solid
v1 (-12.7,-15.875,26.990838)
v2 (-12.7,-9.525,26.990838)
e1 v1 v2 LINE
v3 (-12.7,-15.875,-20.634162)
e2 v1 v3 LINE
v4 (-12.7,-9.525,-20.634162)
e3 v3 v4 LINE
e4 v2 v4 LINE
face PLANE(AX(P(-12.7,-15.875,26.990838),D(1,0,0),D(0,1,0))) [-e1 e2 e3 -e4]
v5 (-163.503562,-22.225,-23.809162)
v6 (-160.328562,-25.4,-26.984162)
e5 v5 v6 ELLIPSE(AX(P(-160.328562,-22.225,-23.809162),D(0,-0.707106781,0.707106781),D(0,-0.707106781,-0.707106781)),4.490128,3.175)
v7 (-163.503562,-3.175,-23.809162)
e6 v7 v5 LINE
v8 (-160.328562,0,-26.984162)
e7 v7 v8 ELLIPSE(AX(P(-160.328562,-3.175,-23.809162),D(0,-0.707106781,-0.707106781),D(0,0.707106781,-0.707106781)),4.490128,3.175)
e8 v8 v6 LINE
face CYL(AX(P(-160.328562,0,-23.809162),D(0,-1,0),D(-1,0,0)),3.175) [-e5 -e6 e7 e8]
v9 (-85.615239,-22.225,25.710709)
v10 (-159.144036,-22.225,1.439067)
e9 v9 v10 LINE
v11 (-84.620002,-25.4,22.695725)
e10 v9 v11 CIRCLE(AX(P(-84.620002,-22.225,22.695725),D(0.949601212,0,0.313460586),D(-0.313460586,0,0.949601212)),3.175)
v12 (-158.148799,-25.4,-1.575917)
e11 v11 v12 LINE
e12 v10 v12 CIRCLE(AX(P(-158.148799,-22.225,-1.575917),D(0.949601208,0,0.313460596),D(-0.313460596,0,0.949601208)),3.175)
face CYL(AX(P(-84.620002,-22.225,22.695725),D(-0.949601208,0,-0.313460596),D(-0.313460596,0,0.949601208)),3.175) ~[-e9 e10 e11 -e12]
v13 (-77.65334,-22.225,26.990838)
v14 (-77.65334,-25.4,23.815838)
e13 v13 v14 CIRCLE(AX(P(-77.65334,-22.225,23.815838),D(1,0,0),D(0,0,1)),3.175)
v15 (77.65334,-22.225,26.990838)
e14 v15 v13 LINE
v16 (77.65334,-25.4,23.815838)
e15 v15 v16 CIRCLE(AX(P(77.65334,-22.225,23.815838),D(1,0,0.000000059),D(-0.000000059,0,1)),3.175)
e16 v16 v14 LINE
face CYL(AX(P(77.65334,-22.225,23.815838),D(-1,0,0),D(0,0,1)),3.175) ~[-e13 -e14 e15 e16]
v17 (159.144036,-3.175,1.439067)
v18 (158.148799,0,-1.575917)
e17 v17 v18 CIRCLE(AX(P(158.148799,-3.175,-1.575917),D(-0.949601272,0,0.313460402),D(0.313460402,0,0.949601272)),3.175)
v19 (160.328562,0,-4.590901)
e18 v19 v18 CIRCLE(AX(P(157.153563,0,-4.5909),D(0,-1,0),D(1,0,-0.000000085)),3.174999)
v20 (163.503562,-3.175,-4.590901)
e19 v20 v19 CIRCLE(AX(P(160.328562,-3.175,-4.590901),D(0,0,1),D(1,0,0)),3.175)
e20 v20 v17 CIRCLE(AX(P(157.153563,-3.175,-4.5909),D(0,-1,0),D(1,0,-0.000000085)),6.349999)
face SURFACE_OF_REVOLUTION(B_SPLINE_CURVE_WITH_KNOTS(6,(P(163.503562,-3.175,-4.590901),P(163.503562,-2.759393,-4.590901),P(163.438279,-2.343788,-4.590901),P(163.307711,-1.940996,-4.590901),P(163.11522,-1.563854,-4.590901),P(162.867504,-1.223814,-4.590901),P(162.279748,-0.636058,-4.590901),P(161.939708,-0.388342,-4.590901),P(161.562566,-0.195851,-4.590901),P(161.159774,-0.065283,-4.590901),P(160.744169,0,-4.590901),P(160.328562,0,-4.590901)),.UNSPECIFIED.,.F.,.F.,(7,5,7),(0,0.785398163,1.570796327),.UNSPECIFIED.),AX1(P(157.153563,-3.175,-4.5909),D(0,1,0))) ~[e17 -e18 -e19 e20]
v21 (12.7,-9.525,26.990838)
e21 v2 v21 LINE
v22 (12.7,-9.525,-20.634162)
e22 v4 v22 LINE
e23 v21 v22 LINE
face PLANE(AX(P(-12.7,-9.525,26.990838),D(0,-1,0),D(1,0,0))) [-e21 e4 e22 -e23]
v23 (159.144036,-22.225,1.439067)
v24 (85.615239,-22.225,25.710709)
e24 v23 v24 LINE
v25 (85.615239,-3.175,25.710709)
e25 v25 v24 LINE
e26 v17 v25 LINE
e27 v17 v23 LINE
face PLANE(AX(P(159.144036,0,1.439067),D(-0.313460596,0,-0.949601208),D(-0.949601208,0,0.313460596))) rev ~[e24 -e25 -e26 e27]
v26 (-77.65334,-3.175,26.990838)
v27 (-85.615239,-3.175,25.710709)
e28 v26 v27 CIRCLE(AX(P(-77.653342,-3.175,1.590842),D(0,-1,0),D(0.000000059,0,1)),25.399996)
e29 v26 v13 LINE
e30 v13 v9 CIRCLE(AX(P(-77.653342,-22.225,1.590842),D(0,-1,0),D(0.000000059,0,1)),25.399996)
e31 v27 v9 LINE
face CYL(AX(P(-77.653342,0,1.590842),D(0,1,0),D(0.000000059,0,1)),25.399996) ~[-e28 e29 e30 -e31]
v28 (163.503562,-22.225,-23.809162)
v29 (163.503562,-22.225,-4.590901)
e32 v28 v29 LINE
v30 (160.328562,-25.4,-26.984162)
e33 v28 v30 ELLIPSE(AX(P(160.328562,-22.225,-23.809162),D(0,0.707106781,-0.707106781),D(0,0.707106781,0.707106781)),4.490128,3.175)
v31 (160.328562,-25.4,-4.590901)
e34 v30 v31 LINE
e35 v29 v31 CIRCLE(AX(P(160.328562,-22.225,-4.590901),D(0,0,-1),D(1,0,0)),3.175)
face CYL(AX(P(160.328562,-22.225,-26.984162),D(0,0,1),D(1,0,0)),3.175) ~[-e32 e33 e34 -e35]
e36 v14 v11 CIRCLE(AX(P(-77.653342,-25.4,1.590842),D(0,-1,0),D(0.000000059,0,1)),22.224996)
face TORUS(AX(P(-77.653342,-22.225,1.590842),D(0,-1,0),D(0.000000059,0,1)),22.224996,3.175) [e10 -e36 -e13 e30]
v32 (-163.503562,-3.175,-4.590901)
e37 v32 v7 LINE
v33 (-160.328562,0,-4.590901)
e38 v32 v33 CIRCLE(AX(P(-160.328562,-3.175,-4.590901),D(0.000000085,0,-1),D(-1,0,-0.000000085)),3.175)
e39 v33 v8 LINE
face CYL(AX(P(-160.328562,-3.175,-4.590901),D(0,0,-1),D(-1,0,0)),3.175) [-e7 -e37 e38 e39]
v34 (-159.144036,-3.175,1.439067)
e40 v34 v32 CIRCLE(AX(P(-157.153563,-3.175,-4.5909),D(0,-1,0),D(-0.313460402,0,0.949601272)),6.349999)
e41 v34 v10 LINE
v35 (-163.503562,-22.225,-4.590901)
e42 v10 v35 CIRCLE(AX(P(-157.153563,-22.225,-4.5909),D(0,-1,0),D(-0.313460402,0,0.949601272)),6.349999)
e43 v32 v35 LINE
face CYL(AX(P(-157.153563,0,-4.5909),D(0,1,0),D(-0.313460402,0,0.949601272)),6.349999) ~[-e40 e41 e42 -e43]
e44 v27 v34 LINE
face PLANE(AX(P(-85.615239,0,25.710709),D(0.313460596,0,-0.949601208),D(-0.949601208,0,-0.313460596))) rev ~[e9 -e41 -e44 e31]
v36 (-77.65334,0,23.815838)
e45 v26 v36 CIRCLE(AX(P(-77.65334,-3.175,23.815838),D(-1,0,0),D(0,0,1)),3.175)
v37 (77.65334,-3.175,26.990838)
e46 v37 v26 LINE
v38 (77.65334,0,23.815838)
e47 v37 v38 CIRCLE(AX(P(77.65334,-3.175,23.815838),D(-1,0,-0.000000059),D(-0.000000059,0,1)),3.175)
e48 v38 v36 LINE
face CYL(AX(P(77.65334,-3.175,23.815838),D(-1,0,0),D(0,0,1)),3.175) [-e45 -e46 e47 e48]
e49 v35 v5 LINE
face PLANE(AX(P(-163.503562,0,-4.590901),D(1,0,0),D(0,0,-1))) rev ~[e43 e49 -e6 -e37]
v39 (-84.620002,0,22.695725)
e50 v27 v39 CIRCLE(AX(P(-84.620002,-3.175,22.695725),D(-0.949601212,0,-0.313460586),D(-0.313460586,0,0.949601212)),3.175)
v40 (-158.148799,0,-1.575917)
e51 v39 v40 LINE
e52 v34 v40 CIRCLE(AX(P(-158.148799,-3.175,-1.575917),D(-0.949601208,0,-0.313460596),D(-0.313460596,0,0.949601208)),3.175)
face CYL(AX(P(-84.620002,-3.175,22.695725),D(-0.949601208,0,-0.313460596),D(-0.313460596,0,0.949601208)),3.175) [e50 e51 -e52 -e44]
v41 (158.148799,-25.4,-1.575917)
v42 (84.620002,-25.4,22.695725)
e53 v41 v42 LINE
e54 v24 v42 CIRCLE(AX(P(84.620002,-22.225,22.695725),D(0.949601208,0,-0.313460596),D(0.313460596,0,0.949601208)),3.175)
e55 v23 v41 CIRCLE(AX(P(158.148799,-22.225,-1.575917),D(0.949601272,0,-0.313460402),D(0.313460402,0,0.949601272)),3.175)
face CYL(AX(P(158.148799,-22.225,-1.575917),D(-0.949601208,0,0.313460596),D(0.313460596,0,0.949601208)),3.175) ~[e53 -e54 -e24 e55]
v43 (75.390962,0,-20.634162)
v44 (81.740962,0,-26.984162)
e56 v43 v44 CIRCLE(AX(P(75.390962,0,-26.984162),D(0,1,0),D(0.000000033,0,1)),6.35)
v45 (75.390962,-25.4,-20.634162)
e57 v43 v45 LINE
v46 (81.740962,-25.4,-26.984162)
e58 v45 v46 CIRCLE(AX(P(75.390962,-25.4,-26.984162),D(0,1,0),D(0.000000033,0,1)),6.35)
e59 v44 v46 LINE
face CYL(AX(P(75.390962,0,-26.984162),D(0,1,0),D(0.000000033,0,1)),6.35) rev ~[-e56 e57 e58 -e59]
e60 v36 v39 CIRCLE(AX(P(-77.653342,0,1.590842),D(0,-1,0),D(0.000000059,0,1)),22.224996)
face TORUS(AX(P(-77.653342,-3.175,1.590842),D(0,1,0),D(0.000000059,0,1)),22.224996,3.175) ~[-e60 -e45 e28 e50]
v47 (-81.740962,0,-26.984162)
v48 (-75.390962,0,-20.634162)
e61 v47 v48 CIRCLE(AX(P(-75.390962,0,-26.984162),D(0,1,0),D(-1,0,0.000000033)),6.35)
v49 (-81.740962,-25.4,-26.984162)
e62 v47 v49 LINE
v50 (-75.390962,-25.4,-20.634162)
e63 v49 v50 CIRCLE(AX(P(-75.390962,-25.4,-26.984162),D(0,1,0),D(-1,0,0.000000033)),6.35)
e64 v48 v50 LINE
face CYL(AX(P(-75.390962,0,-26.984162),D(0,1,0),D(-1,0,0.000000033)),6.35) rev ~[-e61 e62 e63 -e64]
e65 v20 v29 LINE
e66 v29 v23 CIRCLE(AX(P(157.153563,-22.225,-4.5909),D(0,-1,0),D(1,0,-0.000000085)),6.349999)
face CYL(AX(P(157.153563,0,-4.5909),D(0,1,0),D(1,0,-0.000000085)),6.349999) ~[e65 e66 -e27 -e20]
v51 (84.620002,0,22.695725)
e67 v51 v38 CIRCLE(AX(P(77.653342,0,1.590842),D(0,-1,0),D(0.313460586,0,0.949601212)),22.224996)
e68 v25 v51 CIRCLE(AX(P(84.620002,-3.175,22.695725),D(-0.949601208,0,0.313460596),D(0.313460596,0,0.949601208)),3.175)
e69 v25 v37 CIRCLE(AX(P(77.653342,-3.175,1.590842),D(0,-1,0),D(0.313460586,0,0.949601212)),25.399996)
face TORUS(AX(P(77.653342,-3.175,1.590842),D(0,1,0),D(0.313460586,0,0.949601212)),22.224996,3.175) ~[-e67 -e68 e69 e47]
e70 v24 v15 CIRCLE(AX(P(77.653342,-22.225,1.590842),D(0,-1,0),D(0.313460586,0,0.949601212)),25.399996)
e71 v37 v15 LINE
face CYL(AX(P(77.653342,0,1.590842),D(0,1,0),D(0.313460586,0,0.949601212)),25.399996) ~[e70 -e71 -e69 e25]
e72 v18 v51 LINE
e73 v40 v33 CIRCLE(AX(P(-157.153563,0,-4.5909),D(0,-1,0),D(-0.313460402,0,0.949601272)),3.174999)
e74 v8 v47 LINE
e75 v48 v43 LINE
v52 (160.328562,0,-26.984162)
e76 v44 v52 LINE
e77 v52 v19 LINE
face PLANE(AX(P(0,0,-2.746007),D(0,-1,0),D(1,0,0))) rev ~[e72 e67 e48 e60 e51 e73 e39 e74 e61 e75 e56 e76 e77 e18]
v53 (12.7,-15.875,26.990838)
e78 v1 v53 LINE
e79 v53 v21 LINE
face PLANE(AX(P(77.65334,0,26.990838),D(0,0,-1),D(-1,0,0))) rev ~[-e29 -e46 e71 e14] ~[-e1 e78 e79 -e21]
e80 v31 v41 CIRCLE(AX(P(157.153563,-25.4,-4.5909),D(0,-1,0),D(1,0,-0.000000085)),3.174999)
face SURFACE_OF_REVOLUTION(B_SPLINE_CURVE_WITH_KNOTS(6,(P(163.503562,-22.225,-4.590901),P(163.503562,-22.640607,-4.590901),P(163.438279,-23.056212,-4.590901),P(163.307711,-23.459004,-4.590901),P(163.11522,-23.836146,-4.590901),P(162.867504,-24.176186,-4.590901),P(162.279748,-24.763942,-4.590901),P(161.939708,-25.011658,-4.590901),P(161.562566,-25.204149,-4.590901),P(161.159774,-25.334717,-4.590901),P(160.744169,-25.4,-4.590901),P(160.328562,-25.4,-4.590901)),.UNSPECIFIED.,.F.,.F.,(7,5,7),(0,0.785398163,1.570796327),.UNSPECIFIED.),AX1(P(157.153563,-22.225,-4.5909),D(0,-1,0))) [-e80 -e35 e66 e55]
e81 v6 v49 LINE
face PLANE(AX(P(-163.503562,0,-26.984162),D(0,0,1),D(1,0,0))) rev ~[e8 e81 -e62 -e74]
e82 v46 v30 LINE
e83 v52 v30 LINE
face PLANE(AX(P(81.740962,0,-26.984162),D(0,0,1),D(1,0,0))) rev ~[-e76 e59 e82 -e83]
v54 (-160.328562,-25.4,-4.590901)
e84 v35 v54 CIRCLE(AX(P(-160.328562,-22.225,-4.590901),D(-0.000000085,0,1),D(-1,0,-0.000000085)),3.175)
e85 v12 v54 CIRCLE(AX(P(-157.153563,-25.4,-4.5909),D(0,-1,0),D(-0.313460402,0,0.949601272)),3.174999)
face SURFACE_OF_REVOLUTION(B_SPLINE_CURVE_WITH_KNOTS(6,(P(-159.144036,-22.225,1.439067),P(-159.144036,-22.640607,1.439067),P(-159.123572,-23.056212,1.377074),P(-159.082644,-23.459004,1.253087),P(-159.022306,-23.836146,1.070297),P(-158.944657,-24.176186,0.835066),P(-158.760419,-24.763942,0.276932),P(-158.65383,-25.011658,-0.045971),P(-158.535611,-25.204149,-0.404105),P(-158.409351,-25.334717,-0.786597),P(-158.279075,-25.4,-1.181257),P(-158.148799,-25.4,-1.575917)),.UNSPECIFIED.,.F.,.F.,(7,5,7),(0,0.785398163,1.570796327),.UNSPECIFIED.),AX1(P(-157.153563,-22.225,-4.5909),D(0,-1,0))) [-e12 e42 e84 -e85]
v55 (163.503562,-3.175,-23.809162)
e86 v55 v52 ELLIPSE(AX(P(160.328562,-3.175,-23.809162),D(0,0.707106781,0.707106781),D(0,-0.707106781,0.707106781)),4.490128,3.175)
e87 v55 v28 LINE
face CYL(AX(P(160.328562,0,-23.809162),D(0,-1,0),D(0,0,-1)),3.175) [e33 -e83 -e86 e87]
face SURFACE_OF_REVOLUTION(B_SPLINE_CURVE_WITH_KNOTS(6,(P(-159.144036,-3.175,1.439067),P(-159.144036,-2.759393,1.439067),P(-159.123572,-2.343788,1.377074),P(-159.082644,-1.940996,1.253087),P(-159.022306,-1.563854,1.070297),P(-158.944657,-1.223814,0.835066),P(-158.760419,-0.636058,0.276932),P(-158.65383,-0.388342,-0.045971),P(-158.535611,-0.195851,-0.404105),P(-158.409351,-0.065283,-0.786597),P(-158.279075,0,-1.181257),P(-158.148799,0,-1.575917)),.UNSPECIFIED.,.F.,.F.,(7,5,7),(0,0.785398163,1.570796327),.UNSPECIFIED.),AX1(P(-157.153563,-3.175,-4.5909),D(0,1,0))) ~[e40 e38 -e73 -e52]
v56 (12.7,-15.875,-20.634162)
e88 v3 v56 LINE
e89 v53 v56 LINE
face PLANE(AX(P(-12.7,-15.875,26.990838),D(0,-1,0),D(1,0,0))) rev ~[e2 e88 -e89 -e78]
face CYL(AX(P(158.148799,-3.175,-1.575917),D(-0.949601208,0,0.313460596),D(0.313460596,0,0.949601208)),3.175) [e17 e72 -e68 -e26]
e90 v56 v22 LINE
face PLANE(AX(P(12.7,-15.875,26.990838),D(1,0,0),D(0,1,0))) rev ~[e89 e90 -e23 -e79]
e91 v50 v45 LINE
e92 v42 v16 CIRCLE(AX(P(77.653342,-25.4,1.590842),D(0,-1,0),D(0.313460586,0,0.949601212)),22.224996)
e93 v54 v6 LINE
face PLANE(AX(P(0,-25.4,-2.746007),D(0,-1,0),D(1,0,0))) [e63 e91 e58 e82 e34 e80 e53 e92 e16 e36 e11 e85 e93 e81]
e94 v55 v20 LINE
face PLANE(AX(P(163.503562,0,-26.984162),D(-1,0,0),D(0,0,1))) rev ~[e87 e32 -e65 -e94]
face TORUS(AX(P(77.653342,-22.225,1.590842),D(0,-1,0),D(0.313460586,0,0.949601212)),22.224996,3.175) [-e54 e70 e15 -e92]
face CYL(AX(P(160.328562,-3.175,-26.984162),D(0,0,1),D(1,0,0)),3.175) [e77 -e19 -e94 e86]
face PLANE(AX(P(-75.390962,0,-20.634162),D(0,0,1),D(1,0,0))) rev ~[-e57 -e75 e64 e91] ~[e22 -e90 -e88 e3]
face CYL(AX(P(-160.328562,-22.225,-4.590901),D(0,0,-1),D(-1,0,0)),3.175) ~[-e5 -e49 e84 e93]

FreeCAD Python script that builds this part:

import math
import FreeCAD as App
import Part
import Sketcher
from FreeCAD import Vector
Q = App.Units.Quantity


def edges_at(feature, points):
    """Names of the edges that pass closest to the given points."""
    edges = feature.Shape.Edges
    near = lambda p: min(range(len(edges)), key=lambda i: edges[i].distToShape(Part.Vertex(*p))[0])
    return sorted({f"Edge{near(p) + 1}" for p in points})

doc = App.newDocument("Part")
body = doc.addObject("PartDesign::Body", "Body")

sketch1 = body.newObject("Sketcher::SketchObject", "Sketch")
sketch1.AttachmentSupport = (doc.getObject("XZ_Plane"), [""])
sketch1.MapMode = "FlatFace"
sketch1.addGeometry([
    Part.LineSegment(Vector(-85.615239, 25.710709, 0), Vector(-159.144036, 1.439067, 0)),
    Part.ArcOfCircle(Part.Circle(Vector(-157.153563, -4.5909, 0), Vector(0, 0, 1), 6.349999), math.radians(108.267895), math.radians(180.000005)),
    Part.LineSegment(Vector(-163.503562, -4.590901, 0), Vector(-163.503562, -26.984162, 0)),
    Part.LineSegment(Vector(-163.503562, -26.984162, 0), Vector(-81.740962, -26.984162, 0)),
    Part.ArcOfCircle(Part.Circle(Vector(-75.390962, -26.984162, 0), Vector(0, 0, 1), 6.35), math.radians(90.000002), math.radians(179.999998)),
    Part.LineSegment(Vector(-75.390962, -20.634162, 0), Vector(75.390962, -20.634162, 0)),
    Part.ArcOfCircle(Part.Circle(Vector(75.390962, -26.984162, 0), Vector(0, 0, 1), 6.35), math.radians(0.000002), math.radians(89.999998)),
    Part.LineSegment(Vector(81.740962, -26.984162, 0), Vector(163.503562, -26.984162, 0)),
    Part.LineSegment(Vector(163.503562, -26.984162, 0), Vector(163.503562, -4.590901, 0)),
    Part.ArcOfCircle(Part.Circle(Vector(157.153563, -4.5909, 0), Vector(0, 0, 1), 6.349999), math.radians(-0.000005), math.radians(71.732105)),
    Part.LineSegment(Vector(159.144036, 1.439067, 0), Vector(85.615239, 25.710709, 0)),
    Part.ArcOfCircle(Part.Circle(Vector(77.653342, 1.590842, 0), Vector(0, 0, 1), 25.399996), math.radians(71.732094), math.radians(90.000003)),
    Part.LineSegment(Vector(77.65334, 26.990838, 0), Vector(-77.65334, 26.990838, 0)),
    Part.ArcOfCircle(Part.Circle(Vector(-77.653342, 1.590842, 0), Vector(0, 0, 1), 25.399996), math.radians(89.999997), math.radians(108.267906)),
], False)
sketch1.addConstraint([
    Sketcher.Constraint("Tangent", 0, 2, 1, 1),
    Sketcher.Constraint("Tangent", 1, 2, 2, 1),
    Sketcher.Constraint("Coincident", 2, 2, 3, 1),
    Sketcher.Constraint("Coincident", 3, 2, 4, 2),
    Sketcher.Constraint("Tangent", 4, 1, 5, 1),
    Sketcher.Constraint("Tangent", 5, 2, 6, 2),
    Sketcher.Constraint("Coincident", 6, 1, 7, 1),
    Sketcher.Constraint("Coincident", 7, 2, 8, 1),
    Sketcher.Constraint("Tangent", 8, 2, 9, 1),
    Sketcher.Constraint("Tangent", 9, 2, 10, 1),
    Sketcher.Constraint("Tangent", 10, 2, 11, 1),
    Sketcher.Constraint("Tangent", 11, 2, 12, 1),
    Sketcher.Constraint("Tangent", 12, 2, 13, 1),
    Sketcher.Constraint("Tangent", 13, 2, 0, 1),
    Sketcher.Constraint("Vertical", 2),
    Sketcher.Constraint("Horizontal", 3),
    Sketcher.Constraint("Horizontal", 5),
    Sketcher.Constraint("Horizontal", 7),
    Sketcher.Constraint("Vertical", 8),
    Sketcher.Constraint("Horizontal", 12),
    Sketcher.Constraint("Equal", 1, 4),
    Sketcher.Constraint("Equal", 4, 6),
    Sketcher.Constraint("Equal", 6, 9),
    Sketcher.Constraint("Equal", 11, 13),
    Sketcher.Constraint("Symmetric", 1, 3, 9, 3, -2),
    Sketcher.Constraint("Symmetric", 3, 2, 6, 1, -2),
    Sketcher.Constraint("Horizontal", 6, 3, 2, 2),
    Sketcher.Constraint("Horizontal", 0, 2, 9, 2),
    Sketcher.Constraint("Radius", 11, Q("0.9999998 in")),
    Sketcher.Constraint("Radius", 1, Q("0.25 in")),
    Sketcher.Constraint("DistanceX", 3, 1, 3, 2, Q("3.219 in")),
    Sketcher.Constraint("DistanceY", 6, 3, 11, 3, Q("1.1250002 in")),
    Sketcher.Constraint("DistanceX", 12, 2, 12, 1, Q("155.30668 mm")),
    Sketcher.Constraint("DistanceY", 2, 2, 2, 1, Q("22.393261 mm")),
    Sketcher.Constraint("DistanceY", 1, 3, -1, 1, Q("4.5909 mm")),
    Sketcher.Constraint("DistanceX", 5, 1, 5, 2, Q("150.781924 mm")),
])
pad1 = body.newObject("PartDesign::Pad", "Pad")
pad1.Profile = sketch1
pad1.Length = Q("1 in")
doc.recompute()

fillet = body.newObject("PartDesign::Fillet", "Fillet")
fillet.Base = (pad1, edges_at(pad1, [
    (-163.504, -25.4, -15.788),
    (-162.3, -25.4, -0.87),
    (-122.38, -25.4, 13.575),
    (122.38, 0, 13.575),
    (-163.504, -12.7, -26.984),
    (163.504, -12.7, -26.984),
]))
fillet.Radius = Q("0.125 in")

sketch2 = body.newObject("Sketcher::SketchObject", "Sketch001")
sketch2.AttachmentSupport = (doc.getObject("XY_Plane"), [""])
sketch2.MapMode = "FlatFace"
sketch2.AttachmentOffset = App.Placement(Vector(0, 0, 26.990838), App.Rotation())
sketch2.addGeometry([
    Part.LineSegment(Vector(-12.7, -9.525, 0), Vector(-12.7, -15.875, 0)),
    Part.LineSegment(Vector(-12.7, -15.875, 0), Vector(12.7, -15.875, 0)),
    Part.LineSegment(Vector(12.7, -15.875, 0), Vector(12.7, -9.525, 0)),
    Part.LineSegment(Vector(12.7, -9.525, 0), Vector(-12.7, -9.525, 0)),
], False)
sketch2.addConstraint([
    Sketcher.Constraint("Coincident", 0, 2, 1, 1),
    Sketcher.Constraint("Coincident", 1, 2, 2, 1),
    Sketcher.Constraint("Coincident", 2, 2, 3, 1),
    Sketcher.Constraint("Coincident", 3, 2, 0, 1),
    Sketcher.Constraint("Vertical", 0),
    Sketcher.Constraint("Horizontal", 1),
    Sketcher.Constraint("Vertical", 2),
    Sketcher.Constraint("Horizontal", 3),
    Sketcher.Constraint("DistanceX", 1, 1, 1, 2, Q("1 in")),
    Sketcher.Constraint("DistanceY", 0, 2, 0, 1, Q("0.25 in")),
    Sketcher.Constraint("DistanceX", 0, 2, -1, 1, Q("0.5 in")),
    Sketcher.Constraint("DistanceY", 0, 2, -1, 1, Q("0.625 in")),
])
pocket1 = body.newObject("PartDesign::Pocket", "Pocket")
pocket1.Profile = sketch2
pocket1.Type = "ThroughAll"

doc.recompute()
